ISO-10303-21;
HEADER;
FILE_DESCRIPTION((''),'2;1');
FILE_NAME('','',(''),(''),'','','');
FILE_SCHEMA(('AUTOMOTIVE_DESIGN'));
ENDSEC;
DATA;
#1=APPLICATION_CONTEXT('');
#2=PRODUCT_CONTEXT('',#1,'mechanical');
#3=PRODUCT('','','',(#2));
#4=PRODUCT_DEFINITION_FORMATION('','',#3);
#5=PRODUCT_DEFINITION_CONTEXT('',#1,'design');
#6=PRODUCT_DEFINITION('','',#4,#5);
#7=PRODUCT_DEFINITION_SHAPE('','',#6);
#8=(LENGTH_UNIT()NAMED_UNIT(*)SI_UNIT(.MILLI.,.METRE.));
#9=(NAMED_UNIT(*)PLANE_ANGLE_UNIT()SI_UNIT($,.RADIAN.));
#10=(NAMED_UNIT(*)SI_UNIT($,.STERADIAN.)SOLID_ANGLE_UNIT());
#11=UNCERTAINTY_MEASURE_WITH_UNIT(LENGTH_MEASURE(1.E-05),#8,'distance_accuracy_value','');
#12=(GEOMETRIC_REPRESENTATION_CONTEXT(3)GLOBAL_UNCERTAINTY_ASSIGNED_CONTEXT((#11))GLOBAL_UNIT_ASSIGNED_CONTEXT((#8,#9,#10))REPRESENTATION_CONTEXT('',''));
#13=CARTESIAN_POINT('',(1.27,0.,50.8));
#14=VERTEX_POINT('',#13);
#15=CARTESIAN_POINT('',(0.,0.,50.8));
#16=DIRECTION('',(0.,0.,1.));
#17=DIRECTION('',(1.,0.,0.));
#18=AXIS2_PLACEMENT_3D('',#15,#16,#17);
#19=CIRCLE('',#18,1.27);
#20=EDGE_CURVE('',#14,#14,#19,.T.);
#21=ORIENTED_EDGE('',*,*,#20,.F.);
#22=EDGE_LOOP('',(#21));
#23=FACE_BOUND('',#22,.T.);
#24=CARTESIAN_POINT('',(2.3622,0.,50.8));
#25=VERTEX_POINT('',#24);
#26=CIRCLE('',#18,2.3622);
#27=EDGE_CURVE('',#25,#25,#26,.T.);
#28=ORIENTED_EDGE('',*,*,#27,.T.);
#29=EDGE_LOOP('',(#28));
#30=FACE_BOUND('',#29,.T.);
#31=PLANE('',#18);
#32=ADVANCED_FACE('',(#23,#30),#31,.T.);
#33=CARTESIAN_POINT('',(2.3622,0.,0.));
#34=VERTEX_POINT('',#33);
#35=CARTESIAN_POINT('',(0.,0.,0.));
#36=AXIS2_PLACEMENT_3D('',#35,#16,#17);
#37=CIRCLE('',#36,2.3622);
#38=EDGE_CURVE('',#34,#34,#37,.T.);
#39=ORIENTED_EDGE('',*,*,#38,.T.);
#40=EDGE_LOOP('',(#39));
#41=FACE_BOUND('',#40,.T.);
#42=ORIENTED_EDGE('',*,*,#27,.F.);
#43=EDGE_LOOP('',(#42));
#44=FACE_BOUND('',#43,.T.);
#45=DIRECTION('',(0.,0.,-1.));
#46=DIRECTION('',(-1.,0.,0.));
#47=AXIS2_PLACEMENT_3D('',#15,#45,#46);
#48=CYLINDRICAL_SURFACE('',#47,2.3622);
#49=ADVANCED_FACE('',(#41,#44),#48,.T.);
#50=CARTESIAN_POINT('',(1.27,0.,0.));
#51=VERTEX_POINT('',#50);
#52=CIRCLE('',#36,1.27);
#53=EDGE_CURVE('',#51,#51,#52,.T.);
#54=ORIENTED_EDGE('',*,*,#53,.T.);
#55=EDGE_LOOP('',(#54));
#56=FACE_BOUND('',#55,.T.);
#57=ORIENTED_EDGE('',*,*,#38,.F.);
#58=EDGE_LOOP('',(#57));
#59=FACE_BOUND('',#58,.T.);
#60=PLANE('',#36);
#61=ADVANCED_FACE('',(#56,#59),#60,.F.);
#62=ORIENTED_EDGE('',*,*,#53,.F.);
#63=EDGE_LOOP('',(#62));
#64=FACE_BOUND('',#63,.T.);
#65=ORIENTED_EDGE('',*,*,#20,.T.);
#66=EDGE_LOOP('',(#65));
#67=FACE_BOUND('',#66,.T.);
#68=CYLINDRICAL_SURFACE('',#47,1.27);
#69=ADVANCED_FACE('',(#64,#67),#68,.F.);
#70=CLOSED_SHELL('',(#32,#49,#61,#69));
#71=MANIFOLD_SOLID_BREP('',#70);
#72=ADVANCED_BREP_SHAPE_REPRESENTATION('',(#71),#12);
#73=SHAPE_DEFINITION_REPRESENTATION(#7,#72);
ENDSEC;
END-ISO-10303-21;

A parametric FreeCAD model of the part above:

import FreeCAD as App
import Part
import Sketcher
from FreeCAD import Vector
Q = App.Units.Quantity

doc = App.newDocument("Part")
body = doc.addObject("PartDesign::Body", "Body")

# Sketch on XY plane
sketch1 = body.newObject("Sketcher::SketchObject", "Sketch")
sketch1.AttachmentSupport = (doc.getObject("XY_Plane"), [""])
sketch1.MapMode = "FlatFace"
sketch1.addGeometry([
    Part.Circle(Vector(0, 0, 0), Vector(0, 0, 1), 2.4),
    Part.Circle(Vector(0, 0, 0), Vector(0, 0, 1), 1.3),
], False)
sketch1.addConstraint([
    Sketcher.Constraint("Coincident", 0, 3, -1, 1),
    Sketcher.Constraint("Coincident", 1, 3, -1, 1),
    Sketcher.Constraint("Diameter", 1, Q("0.1 in")),
    Sketcher.Constraint("Diameter", 0, Q("0.186 in")),
])
pad1 = body.newObject("PartDesign::Pad", "Pad")
pad1.Profile = sketch1
pad1.Length = Q("2 in")

doc.recompute()
